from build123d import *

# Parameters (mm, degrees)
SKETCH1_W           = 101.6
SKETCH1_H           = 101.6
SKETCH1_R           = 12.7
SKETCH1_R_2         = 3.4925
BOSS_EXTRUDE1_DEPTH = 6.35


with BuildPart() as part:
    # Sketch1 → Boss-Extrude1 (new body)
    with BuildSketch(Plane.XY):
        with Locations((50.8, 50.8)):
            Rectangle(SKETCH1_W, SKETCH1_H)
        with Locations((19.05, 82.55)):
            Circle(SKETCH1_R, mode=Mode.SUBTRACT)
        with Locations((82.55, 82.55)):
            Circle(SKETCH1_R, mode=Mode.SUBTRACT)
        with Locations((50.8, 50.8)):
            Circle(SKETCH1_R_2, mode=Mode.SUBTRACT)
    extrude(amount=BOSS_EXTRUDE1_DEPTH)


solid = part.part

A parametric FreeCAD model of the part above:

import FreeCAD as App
import Part
import Sketcher
Q = App.Units.Quantity


def add_polygon(sketch, points):
    """Adds a closed chain of lines whose ends are joined by coincident constraints."""
    first, n = sketch.GeometryCount, len(points)
    for a, b in zip(points, points[1:] + points[:1]):
        sketch.addGeometry(Part.LineSegment(App.Vector(*a, 0), App.Vector(*b, 0)), False)
    for i in range(n):
        sketch.addConstraint(Sketcher.Constraint("Coincident", first + i, 2, first + (i + 1) % n, 1))

doc = App.newDocument("Part")
params = doc.addObject("Spreadsheet::Sheet", "Params")
for row, (alias, value) in enumerate([
    ("sketch1_diameter", "1 in"),
    ("sketch1_width", "4 in"),
    ("sketch1_diameter2", "0.275 in"),
    ("pad1_length", "0.25 in"),
], start=1):
    params.set(f"A{row}", alias)
    params.set(f"B{row}", "=" + value)
    params.setAlias(f"B{row}", alias)

body = doc.addObject("PartDesign::Body", "Body")

# Sketch on XY plane
sketch1 = doc.addObject("Sketcher::SketchObject", "Sketch")
body.addObject(sketch1)
sketch1.AttachmentSupport = (doc.XY_Plane, [""])
sketch1.MapMode = "FlatFace"
add_polygon(sketch1, [(0, 101.6), (0, 0), (101.6, 0), (101.6, 101.6)])  # lines 0-3
sketch1.addGeometry(Part.Circle(App.Vector(50.8, 50.8, 0), App.Vector(0, 0, 1), 3.5), False)  # 4
sketch1.addGeometry(Part.Circle(App.Vector(19.1, 82.5, 0), App.Vector(0, 0, 1), 12.7), False)  # 5
sketch1.addGeometry(Part.Circle(App.Vector(82.5, 82.5, 0), App.Vector(0, 0, 1), 12.7), False)  # 6
sketch1.addConstraint([
    Sketcher.Constraint("Vertical", 0),
    Sketcher.Constraint("Horizontal", 1),
    Sketcher.Constraint("Vertical", 2),
    Sketcher.Constraint("Horizontal", 3),
    Sketcher.Constraint("Coincident", 0, 2, -1, 1),
    Sketcher.Constraint("Equal", 5, 6),
    Sketcher.Constraint("Horizontal", 5, 3, 6, 3),
    Sketcher.Constraint("Equal", 3, 0),
    Sketcher.Constraint("Diameter", 5, Q("1 in")),
    Sketcher.Constraint("DistanceX", 1, 1, 1, 2, Q("4 in")),
    Sketcher.Constraint("Diameter", 4, Q("0.275 in")),
    Sketcher.Constraint("DistanceX", -1, 1, 4, 3, Q("2 in")),
    Sketcher.Constraint("DistanceY", -1, 1, 4, 3, Q("2 in")),
    Sketcher.Constraint("DistanceX", 5, 3, 6, 3, Q("2.5 in")),
    Sketcher.Constraint("DistanceX", -1, 1, 5, 3, Q("0.75 in")),
    Sketcher.Constraint("DistanceY", -1, 1, 5, 3, Q("3.25 in")),
])
sketch1.setExpression("Constraints[12]", "Params.sketch1_diameter")
sketch1.setExpression("Constraints[13]", "Params.sketch1_width")
sketch1.setExpression("Constraints[14]", "Params.sketch1_diameter2")
pad1 = doc.addObject("PartDesign::Pad", "Pad")
body.addObject(pad1)
pad1.Profile = sketch1
pad1.setExpression("Length", "Params.pad1_length")

doc.recompute()
